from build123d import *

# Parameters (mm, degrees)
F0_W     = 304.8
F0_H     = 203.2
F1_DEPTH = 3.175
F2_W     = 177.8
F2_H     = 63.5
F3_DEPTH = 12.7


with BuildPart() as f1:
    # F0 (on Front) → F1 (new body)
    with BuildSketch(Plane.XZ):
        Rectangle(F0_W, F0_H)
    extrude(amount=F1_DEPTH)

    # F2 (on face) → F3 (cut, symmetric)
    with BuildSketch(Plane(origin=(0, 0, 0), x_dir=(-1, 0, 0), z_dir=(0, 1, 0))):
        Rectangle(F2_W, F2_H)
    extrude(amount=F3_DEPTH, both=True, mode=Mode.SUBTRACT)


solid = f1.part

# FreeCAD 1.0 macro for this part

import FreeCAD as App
import Part
import Sketcher
from FreeCAD import Vector
Q = App.Units.Quantity


def add_polygon(sketch, points):
    """Adds a closed chain of lines whose ends are joined by coincident constraints."""
    first, n = sketch.GeometryCount, len(points)
    for a, b in zip(points, points[1:] + points[:1]):
        sketch.addGeometry(Part.LineSegment(App.Vector(*a, 0), App.Vector(*b, 0)), False)
    for i in range(n):
        sketch.addConstraint(Sketcher.Constraint("Coincident", first + i, 2, first + (i + 1) % n, 1))

doc = App.newDocument("Part")
body = doc.addObject("PartDesign::Body", "Body")

# Sketch on XZ plane
sketch1 = body.newObject("Sketcher::SketchObject", "Sketch")
sketch1.AttachmentSupport = (doc.getObject("XZ_Plane"), [""])
sketch1.MapMode = "FlatFace"
add_polygon(sketch1, [(-152, 102), (-152, -102), (152, -102), (152, 102)])  # lines 0-3
sketch1.addConstraint([
    Sketcher.Constraint("Vertical", 0),
    Sketcher.Constraint("Horizontal", 1),
    Sketcher.Constraint("Vertical", 2),
    Sketcher.Constraint("Horizontal", 3),
    Sketcher.Constraint("Symmetric", 0, 2, 2, 2, -1, 1),
    Sketcher.Constraint("DistanceX", 1, 1, 1, 2, Q("12 in")),
    Sketcher.Constraint("DistanceY", 0, 2, 0, 1, Q("8 in")),
])
pad1 = body.newObject("PartDesign::Pad", "Pad")
pad1.Profile = sketch1
pad1.Length = Q("0.125 in")

# Sketch on XZ plane
sketch2 = body.newObject("Sketcher::SketchObject", "Sketch001")
sketch2.AttachmentSupport = (doc.getObject("XZ_Plane"), [""])
sketch2.MapMode = "FlatFace"
add_polygon(sketch2, [(89, 32), (89, -32), (-89, -32), (-89, 32)])  # lines 0-3
sketch2.addConstraint([
    Sketcher.Constraint("Vertical", 0),
    Sketcher.Constraint("Horizontal", 1),
    Sketcher.Constraint("Vertical", 2),
    Sketcher.Constraint("Horizontal", 3),
    Sketcher.Constraint("Symmetric", 0, 2, 2, 2, -1, 1),
    Sketcher.Constraint("DistanceX", 1, 2, 1, 1, Q("7 in")),
    Sketcher.Constraint("DistanceY", 0, 2, 0, 1, Q("2.5 in")),
])
pocket1 = body.newObject("PartDesign::Pocket", "Pocket")
pocket1.Profile = sketch2
pocket1.Length = Q("1 in")
pocket1.Midplane = True

doc.recompute()
